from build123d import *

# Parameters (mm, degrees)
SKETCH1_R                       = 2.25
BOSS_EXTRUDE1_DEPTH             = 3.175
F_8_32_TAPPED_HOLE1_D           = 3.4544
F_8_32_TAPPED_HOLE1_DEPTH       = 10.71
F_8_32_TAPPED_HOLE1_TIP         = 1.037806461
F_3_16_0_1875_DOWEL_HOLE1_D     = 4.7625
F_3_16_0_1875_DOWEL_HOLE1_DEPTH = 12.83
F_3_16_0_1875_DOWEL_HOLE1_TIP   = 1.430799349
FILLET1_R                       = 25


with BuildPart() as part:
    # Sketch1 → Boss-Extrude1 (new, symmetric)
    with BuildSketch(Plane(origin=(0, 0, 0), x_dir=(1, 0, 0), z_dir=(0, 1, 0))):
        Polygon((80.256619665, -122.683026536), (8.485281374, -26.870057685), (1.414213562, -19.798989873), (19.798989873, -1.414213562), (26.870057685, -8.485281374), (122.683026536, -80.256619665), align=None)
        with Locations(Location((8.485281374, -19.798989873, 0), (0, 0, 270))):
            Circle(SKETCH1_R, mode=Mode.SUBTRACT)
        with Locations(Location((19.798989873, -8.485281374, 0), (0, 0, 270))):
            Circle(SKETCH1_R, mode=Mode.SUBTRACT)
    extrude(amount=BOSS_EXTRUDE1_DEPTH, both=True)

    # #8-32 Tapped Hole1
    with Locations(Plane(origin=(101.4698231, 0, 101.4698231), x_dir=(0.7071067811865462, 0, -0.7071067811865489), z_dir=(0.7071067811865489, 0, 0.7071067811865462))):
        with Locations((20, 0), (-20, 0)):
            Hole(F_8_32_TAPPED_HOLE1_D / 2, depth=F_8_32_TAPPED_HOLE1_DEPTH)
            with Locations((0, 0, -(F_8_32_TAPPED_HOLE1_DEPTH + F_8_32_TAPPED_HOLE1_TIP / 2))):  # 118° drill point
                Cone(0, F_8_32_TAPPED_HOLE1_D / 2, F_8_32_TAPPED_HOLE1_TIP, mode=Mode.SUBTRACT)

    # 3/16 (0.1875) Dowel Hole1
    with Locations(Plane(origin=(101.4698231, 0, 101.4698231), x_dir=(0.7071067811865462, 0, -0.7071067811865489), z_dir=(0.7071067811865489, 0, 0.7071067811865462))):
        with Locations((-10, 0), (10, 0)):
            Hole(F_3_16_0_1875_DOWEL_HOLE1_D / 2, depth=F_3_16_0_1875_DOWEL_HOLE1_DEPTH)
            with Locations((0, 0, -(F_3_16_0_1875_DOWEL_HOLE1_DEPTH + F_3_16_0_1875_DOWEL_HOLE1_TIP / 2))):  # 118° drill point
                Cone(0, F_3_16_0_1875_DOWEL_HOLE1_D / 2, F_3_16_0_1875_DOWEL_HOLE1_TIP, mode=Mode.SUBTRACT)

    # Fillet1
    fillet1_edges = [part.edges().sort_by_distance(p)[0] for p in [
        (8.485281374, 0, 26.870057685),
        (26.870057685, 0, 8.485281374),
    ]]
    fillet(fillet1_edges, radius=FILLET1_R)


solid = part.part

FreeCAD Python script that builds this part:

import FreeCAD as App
import Part
import Sketcher
Q = App.Units.Quantity


def edges_at(feature, points):
    """Names of the edges that pass closest to the given points."""
    edges = feature.Shape.Edges
    near = lambda p: min(range(len(edges)), key=lambda i: edges[i].distToShape(Part.Vertex(*p))[0])
    return sorted({f"Edge{near(p) + 1}" for p in points})

doc = App.newDocument("Part")
params = doc.addObject("Spreadsheet::Sheet", "Params")
for row, (alias, value) in enumerate([
    ("sketch1_diameter", "4.5 mm"),
    ("sketch1_length", "60 mm"),
    ("sketch1_length2", "10 mm"),
    ("sketch1_length3", "26 mm"),
    ("pad1_length", "6.35 mm"),
    ("hole_diameter", "3.4544 mm"),
    ("hole_depth", "10.71 mm"),
    ("hole2_diameter", "4.7625 mm"),
    ("hole2_depth", "12.83 mm"),
    ("fillet_radius", "25 mm"),
], start=1):
    params.set(f"A{row}", alias)
    params.set(f"B{row}", "=" + value)
    params.setAlias(f"B{row}", alias)

body = doc.addObject("PartDesign::Body", "Body")

# Sketch on XZ plane
sketch1 = doc.addObject("Sketcher::SketchObject", "Sketch")
body.addObject(sketch1)
sketch1.AttachmentSupport = (doc.XZ_Plane, [""])
sketch1.MapMode = "FlatFace"
sketch1.addGeometry([
    Part.LineSegment(App.Vector(8.5, 26.9, 0), App.Vector(80.3, 122.7, 0)),  # 0
    Part.LineSegment(App.Vector(80.3, 122.7, 0), App.Vector(122.7, 80.3, 0)),  # 1
    Part.LineSegment(App.Vector(122.7, 80.3, 0), App.Vector(26.9, 8.5, 0)),  # 2
    Part.LineSegment(App.Vector(26.9, 8.5, 0), App.Vector(19.8, 1.4, 0)),  # 3
    Part.LineSegment(App.Vector(19.8, 1.4, 0), App.Vector(1.4, 19.8, 0)),  # 4
    Part.LineSegment(App.Vector(1.4, 19.8, 0), App.Vector(8.5, 26.9, 0)),  # 5
    Part.Circle(App.Vector(8.5, 19.8, 0), App.Vector(0, 0, 1), 2.2),  # 6
    Part.Circle(App.Vector(19.8, 8.5, 0), App.Vector(0, 0, 1), 2.2),  # 7
], False)
sketch1.addConstraint([
    Sketcher.Constraint("Coincident", 0, 2, 1, 1),
    Sketcher.Constraint("Coincident", 1, 2, 2, 1),
    Sketcher.Constraint("Coincident", 2, 2, 3, 1),
    Sketcher.Constraint("Coincident", 3, 2, 4, 1),
    Sketcher.Constraint("Coincident", 4, 2, 5, 1),
    Sketcher.Constraint("Coincident", 5, 2, 0, 1),
    Sketcher.Constraint("Equal", 6, 7),
    Sketcher.Constraint("Perpendicular", 1, 3),
    Sketcher.Constraint("Perpendicular", 3, 4),
    Sketcher.Constraint("Perpendicular", 4, 5),
    Sketcher.Constraint("Horizontal", 7, 3, 2, 2),
    Sketcher.Constraint("Horizontal", 6, 3, 4, 2),
    Sketcher.Constraint("Vertical", 7, 3, 3, 2),
    Sketcher.Constraint("Vertical", 6, 3, 5, 2),
    Sketcher.Constraint("Equal", 0, 2),
    Sketcher.Constraint("Equal", 3, 5),
    Sketcher.Constraint("Diameter", 6, 4.5),
    Sketcher.Constraint("Angle", 1, Q("-45 deg")),
    Sketcher.Constraint("Distance", 1, 60.0),
    Sketcher.Constraint("Distance", 3, 10.0),
    Sketcher.Constraint("Distance", 4, 26.0),
    Sketcher.Constraint("Distance", 0, 119.713199),
    Sketcher.Constraint("DistanceX", -1, 1, 6, 3, 8.485281),
    Sketcher.Constraint("DistanceY", -1, 1, 6, 3, 19.79899),
])
sketch1.setExpression("Constraints[16]", "Params.sketch1_diameter")
sketch1.setExpression("Constraints[18]", "Params.sketch1_length")
sketch1.setExpression("Constraints[19]", "Params.sketch1_length2")
sketch1.setExpression("Constraints[20]", "Params.sketch1_length3")
pad1 = doc.addObject("PartDesign::Pad", "Pad")
body.addObject(pad1)
pad1.Profile = sketch1
pad1.setExpression("Length", "Params.pad1_length")
pad1.Midplane = True

# Sketch on an angled plane
sketch2 = doc.addObject("Sketcher::SketchObject", "Sketch001")
body.addObject(sketch2)
sketch2.Placement = App.Placement(App.Vector(101.469823, 0, 101.469823), App.Rotation(App.Vector(0.707106781, 0, -0.707106781), App.Vector(0, 0.999999999, 0), App.Vector(0.707106781, 0, 0.707106781), "ZXY"))
sketch2.addGeometry([
    Part.Circle(App.Vector(20, 0, 0), App.Vector(0, 0, 1), 1.7),
    Part.Circle(App.Vector(-20, 0, 0), App.Vector(0, 0, 1), 1.7),
], False)
sketch2.addConstraint([
    Sketcher.Constraint("Equal", 0, 1),
    Sketcher.Constraint("Symmetric", 0, 3, 1, 3, -1, 1),
    Sketcher.Constraint("PointOnObject", 0, 3, -1),
    Sketcher.Constraint("DistanceX", -1, 1, 0, 3, 20.0),
    Sketcher.Constraint("Diameter", 0, 3.4544),
])
doc.recompute()
hole = doc.addObject("PartDesign::Hole", "Hole")
body.addObject(hole)
hole.Profile = sketch2
hole.ThreadType = "None"
hole.setExpression("Diameter", "Params.hole_diameter")
hole.DepthType = "Dimension"
hole.setExpression("Depth", "Params.hole_depth")
hole.DrillPoint = "Angled"
hole.DrillPointAngle = 118

# Sketch on an angled plane
sketch3 = doc.addObject("Sketcher::SketchObject", "Sketch002")
body.addObject(sketch3)
sketch3.Placement = App.Placement(App.Vector(101.469823, 0, 101.469823), App.Rotation(App.Vector(0.707106781, 0, -0.707106781), App.Vector(0, 0.999999999, 0), App.Vector(0.707106781, 0, 0.707106781), "ZXY"))
sketch3.addGeometry([
    Part.Circle(App.Vector(-10, 0, 0), App.Vector(0, 0, 1), 2.4),
    Part.Circle(App.Vector(10, 0, 0), App.Vector(0, 0, 1), 2.4),
], False)
sketch3.addConstraint([
    Sketcher.Constraint("Equal", 0, 1),
    Sketcher.Constraint("Symmetric", 0, 3, 1, 3, -1, 1),
    Sketcher.Constraint("PointOnObject", 0, 3, -1),
    Sketcher.Constraint("DistanceX", 0, 3, -1, 1, 10.0),
    Sketcher.Constraint("Diameter", 0, 4.7625),
])
doc.recompute()
hole2 = doc.addObject("PartDesign::Hole", "Hole001")
body.addObject(hole2)
hole2.Profile = sketch3
hole2.ThreadType = "None"
hole2.setExpression("Diameter", "Params.hole2_diameter")
hole2.DepthType = "Dimension"
hole2.setExpression("Depth", "Params.hole2_depth")
hole2.DrillPoint = "Angled"
hole2.DrillPointAngle = 118
doc.recompute()

fillet = doc.addObject("PartDesign::Fillet", "Fillet")
body.addObject(fillet)
fillet.Base = (hole2, edges_at(hole2, [(8.485, 0, 26.87), (26.87, 0, 8.485)]))
fillet.setExpression("Radius", "Params.fillet_radius")

doc.recompute()
